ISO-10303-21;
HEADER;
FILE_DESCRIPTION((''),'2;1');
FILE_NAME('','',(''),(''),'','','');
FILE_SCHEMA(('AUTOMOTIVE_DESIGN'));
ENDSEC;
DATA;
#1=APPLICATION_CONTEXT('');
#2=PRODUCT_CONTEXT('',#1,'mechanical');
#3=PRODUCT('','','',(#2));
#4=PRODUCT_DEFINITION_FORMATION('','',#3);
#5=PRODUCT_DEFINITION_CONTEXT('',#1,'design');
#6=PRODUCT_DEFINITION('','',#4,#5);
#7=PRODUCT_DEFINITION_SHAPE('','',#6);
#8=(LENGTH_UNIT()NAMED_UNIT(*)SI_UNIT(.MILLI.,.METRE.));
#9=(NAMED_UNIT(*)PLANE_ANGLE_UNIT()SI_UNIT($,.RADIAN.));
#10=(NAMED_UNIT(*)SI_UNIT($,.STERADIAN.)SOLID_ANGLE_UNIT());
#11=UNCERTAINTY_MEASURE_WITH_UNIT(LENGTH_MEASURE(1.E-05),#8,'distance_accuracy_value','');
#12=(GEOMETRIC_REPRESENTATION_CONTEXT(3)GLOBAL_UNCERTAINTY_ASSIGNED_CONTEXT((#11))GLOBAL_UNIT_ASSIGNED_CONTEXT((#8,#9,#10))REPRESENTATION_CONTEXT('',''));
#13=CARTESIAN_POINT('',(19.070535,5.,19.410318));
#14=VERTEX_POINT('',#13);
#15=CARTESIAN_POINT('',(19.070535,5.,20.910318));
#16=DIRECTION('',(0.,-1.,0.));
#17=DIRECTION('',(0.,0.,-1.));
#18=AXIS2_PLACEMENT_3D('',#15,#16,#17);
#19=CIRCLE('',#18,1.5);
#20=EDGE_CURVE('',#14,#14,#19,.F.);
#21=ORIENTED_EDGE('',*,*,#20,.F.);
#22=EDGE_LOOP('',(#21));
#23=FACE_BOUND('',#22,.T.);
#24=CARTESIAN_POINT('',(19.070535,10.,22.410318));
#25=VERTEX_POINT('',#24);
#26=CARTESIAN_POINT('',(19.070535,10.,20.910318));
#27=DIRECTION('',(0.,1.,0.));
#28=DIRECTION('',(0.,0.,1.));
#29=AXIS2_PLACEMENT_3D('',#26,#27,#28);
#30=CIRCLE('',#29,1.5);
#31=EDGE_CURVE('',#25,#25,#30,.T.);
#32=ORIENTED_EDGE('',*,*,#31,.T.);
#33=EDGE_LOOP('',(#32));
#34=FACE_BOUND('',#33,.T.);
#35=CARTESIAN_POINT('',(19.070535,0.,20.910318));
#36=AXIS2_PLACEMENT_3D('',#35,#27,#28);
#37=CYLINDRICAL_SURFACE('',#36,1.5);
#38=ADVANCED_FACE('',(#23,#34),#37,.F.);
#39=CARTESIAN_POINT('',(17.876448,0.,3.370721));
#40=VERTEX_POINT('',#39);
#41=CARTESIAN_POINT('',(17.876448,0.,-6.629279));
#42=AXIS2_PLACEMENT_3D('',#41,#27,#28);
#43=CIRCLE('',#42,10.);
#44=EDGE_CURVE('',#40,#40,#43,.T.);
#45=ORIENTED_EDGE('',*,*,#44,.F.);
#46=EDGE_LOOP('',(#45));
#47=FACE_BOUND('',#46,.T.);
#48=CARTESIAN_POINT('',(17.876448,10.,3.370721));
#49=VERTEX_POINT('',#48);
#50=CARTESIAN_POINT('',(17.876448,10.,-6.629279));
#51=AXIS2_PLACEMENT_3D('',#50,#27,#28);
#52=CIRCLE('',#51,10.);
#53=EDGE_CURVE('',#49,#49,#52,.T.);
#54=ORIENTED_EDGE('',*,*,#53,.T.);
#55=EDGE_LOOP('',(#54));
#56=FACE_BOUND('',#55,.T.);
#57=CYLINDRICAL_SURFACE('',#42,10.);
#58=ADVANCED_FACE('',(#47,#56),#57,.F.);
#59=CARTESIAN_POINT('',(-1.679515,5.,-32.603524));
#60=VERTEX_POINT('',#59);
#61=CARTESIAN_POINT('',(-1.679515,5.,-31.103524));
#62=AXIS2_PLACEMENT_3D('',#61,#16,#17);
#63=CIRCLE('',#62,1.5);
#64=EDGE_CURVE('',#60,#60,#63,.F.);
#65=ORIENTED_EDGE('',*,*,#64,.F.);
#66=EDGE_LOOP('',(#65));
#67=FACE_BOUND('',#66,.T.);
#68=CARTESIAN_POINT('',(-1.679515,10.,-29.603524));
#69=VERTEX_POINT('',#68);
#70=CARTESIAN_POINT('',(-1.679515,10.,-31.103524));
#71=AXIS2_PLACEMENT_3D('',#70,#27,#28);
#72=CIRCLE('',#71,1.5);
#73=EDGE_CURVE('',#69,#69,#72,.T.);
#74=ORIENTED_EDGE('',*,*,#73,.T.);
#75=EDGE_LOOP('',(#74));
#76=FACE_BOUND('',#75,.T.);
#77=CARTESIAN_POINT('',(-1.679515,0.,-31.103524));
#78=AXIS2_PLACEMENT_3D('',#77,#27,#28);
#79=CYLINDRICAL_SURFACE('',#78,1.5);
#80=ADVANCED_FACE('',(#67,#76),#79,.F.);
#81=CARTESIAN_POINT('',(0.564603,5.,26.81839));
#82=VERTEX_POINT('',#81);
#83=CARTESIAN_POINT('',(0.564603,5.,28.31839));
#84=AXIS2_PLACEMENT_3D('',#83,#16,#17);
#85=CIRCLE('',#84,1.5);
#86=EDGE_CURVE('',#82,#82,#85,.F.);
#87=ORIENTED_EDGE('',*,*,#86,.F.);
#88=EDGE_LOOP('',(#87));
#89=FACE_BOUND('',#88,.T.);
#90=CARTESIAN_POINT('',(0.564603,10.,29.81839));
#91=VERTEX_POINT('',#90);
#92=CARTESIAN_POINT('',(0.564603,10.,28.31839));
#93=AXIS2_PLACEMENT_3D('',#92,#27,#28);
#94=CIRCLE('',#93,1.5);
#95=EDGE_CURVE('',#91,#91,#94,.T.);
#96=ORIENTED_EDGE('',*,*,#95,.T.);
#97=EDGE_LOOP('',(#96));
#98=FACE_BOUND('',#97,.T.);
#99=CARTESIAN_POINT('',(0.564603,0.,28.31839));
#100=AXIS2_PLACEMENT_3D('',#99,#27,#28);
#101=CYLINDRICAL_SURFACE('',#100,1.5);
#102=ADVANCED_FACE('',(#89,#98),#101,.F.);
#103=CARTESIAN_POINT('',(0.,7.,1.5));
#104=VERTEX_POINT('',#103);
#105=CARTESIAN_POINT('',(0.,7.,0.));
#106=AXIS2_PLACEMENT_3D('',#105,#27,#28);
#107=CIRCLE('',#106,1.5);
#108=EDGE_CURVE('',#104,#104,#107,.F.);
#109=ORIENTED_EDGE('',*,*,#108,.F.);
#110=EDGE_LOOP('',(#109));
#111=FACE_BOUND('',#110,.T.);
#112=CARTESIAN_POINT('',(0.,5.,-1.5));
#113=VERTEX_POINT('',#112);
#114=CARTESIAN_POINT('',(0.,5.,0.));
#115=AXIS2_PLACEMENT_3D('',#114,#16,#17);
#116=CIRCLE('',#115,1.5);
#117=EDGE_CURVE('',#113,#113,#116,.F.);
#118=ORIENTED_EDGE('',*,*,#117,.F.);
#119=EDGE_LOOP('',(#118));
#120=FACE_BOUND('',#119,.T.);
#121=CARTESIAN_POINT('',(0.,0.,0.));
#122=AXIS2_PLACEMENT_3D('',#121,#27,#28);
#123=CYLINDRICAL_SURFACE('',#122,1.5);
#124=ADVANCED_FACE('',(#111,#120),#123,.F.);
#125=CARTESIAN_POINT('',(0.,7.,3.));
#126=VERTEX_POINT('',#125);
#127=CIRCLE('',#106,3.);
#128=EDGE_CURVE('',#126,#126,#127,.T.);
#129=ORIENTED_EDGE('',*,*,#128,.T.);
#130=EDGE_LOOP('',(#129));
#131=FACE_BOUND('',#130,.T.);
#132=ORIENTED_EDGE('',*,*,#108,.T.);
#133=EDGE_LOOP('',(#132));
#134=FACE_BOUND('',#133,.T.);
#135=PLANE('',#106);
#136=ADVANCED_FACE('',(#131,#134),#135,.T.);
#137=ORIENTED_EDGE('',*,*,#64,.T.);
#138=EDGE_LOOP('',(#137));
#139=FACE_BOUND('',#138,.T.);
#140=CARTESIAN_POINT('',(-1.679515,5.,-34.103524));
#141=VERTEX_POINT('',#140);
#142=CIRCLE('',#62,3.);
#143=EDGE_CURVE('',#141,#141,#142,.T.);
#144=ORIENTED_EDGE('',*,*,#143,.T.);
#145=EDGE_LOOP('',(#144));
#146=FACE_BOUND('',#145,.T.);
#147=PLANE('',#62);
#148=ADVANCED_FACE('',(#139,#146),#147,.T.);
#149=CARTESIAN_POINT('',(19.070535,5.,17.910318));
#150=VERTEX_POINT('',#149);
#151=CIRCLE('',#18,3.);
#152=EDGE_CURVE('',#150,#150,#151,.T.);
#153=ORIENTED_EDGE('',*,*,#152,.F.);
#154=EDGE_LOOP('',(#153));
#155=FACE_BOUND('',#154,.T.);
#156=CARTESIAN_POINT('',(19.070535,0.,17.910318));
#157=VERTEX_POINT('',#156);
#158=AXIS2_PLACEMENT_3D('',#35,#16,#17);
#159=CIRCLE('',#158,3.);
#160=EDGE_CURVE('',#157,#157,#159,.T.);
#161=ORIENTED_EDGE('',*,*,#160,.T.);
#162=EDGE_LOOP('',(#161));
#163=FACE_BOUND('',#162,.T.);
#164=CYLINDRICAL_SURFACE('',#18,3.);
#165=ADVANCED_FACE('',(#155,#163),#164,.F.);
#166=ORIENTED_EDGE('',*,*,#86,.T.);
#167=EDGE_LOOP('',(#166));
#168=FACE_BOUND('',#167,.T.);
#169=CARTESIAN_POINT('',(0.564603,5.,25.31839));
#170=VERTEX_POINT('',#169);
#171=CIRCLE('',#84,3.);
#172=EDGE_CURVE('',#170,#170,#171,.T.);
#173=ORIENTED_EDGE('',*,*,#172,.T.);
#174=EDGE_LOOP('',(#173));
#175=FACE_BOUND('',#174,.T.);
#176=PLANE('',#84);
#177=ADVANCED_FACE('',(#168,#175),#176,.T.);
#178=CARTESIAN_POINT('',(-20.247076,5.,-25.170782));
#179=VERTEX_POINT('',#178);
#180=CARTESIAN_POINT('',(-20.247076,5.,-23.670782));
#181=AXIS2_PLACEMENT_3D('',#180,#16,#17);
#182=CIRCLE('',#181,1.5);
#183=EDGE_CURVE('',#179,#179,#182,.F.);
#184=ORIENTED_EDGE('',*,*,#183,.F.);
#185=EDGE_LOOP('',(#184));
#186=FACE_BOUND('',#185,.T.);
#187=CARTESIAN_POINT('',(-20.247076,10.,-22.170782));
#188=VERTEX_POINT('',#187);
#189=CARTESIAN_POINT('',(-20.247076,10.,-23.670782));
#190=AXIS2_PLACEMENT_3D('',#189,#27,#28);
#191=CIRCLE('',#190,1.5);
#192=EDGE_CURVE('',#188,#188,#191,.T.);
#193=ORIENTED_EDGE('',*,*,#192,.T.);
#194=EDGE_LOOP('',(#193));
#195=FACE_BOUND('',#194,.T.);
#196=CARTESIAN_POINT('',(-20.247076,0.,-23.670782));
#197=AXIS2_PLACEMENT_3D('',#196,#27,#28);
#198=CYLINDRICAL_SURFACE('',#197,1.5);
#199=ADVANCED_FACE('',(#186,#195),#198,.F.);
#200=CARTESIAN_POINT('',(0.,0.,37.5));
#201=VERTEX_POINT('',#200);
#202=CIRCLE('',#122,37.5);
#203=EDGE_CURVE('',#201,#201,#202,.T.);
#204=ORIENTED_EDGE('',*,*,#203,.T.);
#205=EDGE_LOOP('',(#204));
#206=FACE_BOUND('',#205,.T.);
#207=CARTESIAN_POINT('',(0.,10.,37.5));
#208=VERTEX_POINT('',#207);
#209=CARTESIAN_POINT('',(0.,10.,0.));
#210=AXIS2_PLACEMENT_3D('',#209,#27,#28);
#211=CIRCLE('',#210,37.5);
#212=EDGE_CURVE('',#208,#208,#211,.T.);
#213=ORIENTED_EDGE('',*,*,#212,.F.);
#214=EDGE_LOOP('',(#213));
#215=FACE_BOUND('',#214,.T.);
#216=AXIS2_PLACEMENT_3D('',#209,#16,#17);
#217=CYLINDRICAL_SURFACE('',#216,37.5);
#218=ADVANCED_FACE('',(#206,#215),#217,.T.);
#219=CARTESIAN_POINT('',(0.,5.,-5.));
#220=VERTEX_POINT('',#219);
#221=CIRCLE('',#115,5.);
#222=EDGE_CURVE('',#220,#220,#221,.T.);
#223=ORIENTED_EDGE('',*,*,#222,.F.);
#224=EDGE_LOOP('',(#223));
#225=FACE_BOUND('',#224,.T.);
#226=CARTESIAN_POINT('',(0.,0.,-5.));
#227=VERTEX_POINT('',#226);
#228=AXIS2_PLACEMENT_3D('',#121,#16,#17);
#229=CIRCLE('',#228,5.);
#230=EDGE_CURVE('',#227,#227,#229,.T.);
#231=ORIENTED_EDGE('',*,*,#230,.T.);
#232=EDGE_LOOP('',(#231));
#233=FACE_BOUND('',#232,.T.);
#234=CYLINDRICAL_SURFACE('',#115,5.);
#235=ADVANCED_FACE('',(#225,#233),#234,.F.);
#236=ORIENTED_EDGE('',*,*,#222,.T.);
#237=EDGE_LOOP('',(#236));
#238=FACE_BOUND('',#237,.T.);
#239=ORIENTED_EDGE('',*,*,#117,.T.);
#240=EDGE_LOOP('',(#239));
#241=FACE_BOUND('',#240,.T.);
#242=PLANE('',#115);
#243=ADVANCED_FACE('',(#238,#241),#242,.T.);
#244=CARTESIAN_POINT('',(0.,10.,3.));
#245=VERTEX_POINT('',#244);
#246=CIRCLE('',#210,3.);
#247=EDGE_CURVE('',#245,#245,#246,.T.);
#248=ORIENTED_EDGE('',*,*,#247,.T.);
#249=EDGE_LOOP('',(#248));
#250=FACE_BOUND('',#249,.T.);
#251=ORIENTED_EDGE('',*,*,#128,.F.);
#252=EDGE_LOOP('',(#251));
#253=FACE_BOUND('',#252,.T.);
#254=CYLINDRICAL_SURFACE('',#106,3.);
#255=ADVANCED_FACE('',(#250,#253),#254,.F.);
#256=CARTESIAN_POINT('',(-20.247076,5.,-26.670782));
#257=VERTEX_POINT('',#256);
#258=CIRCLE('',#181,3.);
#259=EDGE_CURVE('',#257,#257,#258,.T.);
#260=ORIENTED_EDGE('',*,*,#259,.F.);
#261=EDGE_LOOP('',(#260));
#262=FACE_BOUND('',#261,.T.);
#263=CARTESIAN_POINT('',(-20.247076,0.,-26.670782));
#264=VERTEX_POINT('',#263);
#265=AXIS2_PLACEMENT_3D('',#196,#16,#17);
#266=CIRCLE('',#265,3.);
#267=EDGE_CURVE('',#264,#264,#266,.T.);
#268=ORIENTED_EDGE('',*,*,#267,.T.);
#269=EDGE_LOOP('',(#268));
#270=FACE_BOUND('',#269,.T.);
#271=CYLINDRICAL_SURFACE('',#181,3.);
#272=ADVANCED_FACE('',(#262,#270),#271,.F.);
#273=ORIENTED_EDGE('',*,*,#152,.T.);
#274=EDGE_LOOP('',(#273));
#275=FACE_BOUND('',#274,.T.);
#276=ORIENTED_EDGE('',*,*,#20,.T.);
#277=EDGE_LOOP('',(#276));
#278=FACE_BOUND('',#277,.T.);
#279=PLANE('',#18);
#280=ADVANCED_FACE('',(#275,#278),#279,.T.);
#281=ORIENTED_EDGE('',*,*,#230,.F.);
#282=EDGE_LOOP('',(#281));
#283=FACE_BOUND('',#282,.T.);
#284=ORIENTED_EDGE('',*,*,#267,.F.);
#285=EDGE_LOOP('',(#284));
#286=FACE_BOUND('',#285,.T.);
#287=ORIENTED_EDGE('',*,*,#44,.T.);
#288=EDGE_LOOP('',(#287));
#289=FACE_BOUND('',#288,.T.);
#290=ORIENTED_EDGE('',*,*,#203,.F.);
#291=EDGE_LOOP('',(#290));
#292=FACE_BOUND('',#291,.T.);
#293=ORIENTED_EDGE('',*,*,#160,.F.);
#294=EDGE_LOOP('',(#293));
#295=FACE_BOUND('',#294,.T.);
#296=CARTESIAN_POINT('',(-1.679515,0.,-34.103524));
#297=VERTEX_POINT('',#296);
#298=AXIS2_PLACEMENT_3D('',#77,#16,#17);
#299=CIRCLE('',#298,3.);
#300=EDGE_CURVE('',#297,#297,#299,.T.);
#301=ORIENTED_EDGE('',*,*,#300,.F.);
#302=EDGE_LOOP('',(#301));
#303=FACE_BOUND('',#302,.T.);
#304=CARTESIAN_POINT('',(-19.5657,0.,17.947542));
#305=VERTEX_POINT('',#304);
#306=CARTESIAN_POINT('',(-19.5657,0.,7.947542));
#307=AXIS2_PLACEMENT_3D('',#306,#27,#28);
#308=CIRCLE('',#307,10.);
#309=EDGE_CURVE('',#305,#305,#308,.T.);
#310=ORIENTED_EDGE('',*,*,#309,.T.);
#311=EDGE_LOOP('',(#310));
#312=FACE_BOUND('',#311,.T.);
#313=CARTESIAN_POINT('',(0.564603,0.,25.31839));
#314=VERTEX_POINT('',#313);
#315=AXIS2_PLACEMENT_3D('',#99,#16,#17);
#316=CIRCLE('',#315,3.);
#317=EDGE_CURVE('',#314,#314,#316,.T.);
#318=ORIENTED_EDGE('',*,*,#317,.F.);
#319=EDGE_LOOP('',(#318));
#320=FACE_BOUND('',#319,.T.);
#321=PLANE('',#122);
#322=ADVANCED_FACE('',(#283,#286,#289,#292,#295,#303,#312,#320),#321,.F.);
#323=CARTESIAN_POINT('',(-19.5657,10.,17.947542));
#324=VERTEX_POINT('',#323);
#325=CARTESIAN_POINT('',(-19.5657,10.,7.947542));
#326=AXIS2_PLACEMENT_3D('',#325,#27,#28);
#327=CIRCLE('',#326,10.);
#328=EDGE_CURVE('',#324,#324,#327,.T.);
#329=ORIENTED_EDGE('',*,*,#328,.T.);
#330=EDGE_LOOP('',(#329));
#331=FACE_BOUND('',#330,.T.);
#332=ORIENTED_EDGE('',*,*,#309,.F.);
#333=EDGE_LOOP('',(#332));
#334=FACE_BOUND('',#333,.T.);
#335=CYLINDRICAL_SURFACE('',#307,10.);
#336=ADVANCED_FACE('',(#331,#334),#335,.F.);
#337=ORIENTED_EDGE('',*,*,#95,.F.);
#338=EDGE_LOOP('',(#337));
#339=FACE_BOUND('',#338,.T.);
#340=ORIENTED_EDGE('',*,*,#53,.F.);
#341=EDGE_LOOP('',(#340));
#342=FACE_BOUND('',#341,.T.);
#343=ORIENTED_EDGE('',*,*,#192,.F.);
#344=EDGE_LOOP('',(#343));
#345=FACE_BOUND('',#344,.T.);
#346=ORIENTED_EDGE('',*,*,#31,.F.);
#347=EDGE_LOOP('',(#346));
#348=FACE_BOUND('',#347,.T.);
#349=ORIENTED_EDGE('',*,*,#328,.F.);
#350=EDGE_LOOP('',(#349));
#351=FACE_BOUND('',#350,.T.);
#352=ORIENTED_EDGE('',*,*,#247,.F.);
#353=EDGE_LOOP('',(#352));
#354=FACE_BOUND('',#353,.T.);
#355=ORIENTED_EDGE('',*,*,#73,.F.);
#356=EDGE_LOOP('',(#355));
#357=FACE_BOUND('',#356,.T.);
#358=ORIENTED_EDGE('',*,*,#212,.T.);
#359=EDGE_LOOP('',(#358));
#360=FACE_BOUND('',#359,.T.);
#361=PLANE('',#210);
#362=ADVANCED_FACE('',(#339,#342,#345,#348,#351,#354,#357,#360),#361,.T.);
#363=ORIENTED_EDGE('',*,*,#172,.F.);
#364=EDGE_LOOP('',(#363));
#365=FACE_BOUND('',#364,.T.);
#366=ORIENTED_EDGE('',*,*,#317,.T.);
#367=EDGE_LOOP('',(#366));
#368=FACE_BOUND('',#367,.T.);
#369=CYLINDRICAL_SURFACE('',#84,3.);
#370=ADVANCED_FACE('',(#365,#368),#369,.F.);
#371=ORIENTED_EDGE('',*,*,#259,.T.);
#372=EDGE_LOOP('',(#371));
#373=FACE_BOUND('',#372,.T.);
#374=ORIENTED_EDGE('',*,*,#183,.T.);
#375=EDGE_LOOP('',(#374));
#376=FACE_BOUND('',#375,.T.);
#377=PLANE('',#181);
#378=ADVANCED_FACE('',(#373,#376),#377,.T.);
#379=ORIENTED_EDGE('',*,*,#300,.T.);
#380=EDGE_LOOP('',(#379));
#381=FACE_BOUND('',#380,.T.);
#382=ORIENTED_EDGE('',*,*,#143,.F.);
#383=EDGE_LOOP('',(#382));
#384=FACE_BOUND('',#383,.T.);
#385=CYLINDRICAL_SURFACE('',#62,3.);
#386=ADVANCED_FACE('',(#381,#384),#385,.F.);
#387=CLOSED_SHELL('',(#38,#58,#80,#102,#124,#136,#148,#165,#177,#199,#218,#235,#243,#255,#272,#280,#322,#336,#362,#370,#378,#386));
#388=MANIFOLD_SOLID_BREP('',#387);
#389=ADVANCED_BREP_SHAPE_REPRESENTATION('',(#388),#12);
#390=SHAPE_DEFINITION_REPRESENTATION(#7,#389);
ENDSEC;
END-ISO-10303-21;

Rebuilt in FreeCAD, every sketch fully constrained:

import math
import FreeCAD as App
import Part
import Sketcher

V = App.Vector

doc = App.newDocument("Part")
body = doc.addObject("PartDesign::Body", "Body")

# Sketch on XZ plane
sketch1 = body.newObject("Sketcher::SketchObject", "Sketch")
sketch1.AttachmentSupport = (doc.getObject("XZ_Plane"), [""])
sketch1.MapMode = "FlatFace"
sketch1.addGeometry(Part.Circle(V(0, 0, 0), V(0, 0, 1), 38), False)
sketch1.addConstraint(Sketcher.Constraint("Coincident", 0, 3, -1, 1))
sketch1.addConstraint(Sketcher.Constraint("Diameter", 0, 75.0))
pad1 = body.newObject("PartDesign::Pad", "Pad")
pad1.Profile = sketch1
pad1.Length = 10
pad1.Reversed = True

# Sketch on XZ plane
sketch2 = body.newObject("Sketcher::SketchObject", "Sketch001")
sketch2.AttachmentSupport = (doc.getObject("XZ_Plane"), [""])
sketch2.MapMode = "FlatFace"
sketch2.AttachmentOffset = App.Placement(V(0, 0, -10), App.Rotation())
sketch2.addGeometry(Part.Circle(V(0, 0, 0), V(0, 0, 1), 1.5), False)
sketch2.addConstraint(Sketcher.Constraint("Coincident", 0, 3, -1, 1))
sketch2.addConstraint(Sketcher.Constraint("Diameter", 0, 3.0))
pocket1 = body.newObject("PartDesign::Pocket", "Pocket")
pocket1.Profile = sketch2
pocket1.Type = "ThroughAll"
pocket1.Reversed = True

# Sketch on XZ plane
sketch3 = body.newObject("Sketcher::SketchObject", "Sketch002")
sketch3.AttachmentSupport = (doc.getObject("XZ_Plane"), [""])
sketch3.MapMode = "FlatFace"
sketch3.addGeometry(Part.Circle(V(0, 0, 0), V(0, 0, 1), 5), False)
sketch3.addConstraint(Sketcher.Constraint("Coincident", 0, 3, -1, 1))
sketch3.addConstraint(Sketcher.Constraint("Diameter", 0, 10.0))
pocket2 = body.newObject("PartDesign::Pocket", "Pocket001")
pocket2.Profile = sketch3
pocket2.Length = 5

# Sketch on XZ plane
sketch4 = body.newObject("Sketcher::SketchObject", "Sketch003")
sketch4.AttachmentSupport = (doc.getObject("XZ_Plane"), [""])
sketch4.MapMode = "FlatFace"
sketch4.AttachmentOffset = App.Placement(V(0, 0, -10), App.Rotation())
sketch4.addGeometry(Part.ArcOfCircle(Part.Circle(V(-20.2, -23.7, 0), V(0, 0, 1), 1.5), math.radians(68), math.radians(338)), False)
sketch4.addGeometry(Part.ArcOfCircle(Part.Circle(V(-20.2, -23.7, 0), V(0, 0, 1), 1.5), math.radians(0), math.radians(68)), False)
sketch4.addGeometry(Part.ArcOfCircle(Part.Circle(V(-20.2, -23.7, 0), V(0, 0, 1), 1.5), math.radians(-22), math.radians(0)), False)
sketch4.addGeometry(Part.ArcOfCircle(Part.Circle(V(-1.7, -31.1, 0), V(0, 0, 1), 1.5), math.radians(68), math.radians(158)), False)
sketch4.addGeometry(Part.ArcOfCircle(Part.Circle(V(-1.7, -31.1, 0), V(0, 0, 1), 1.5), math.radians(0), math.radians(68)), False)
sketch4.addGeometry(Part.ArcOfCircle(Part.Circle(V(-1.7, -31.1, 0), V(0, 0, 1), 1.5), math.radians(158), math.radians(360)), False)
sketch4.addGeometry(Part.Circle(V(19.1, 20.9, 0), V(0, 0, 1), 1.5), False)
sketch4.addGeometry(Part.Circle(V(0.6, 28.3, 0), V(0, 0, 1), 1.5), False)
sketch4.addConstraint(Sketcher.Constraint("Tangent", 0, 1, 1, 2))
sketch4.addConstraint(Sketcher.Constraint("Tangent", 1, 1, 2, 2))
sketch4.addConstraint(Sketcher.Constraint("Tangent", 2, 1, 0, 2))
sketch4.addConstraint(Sketcher.Constraint("Tangent", 3, 1, 4, 2))
sketch4.addConstraint(Sketcher.Constraint("Tangent", 4, 1, 5, 2))
sketch4.addConstraint(Sketcher.Constraint("Tangent", 5, 1, 3, 2))
sketch4.addConstraint(Sketcher.Constraint("Equal", 2, 3))
sketch4.addConstraint(Sketcher.Constraint("Equal", 5, 6))
sketch4.addConstraint(Sketcher.Constraint("Equal", 6, 7))
sketch4.addConstraint(Sketcher.Constraint("Horizontal", 2, 3, 1, 1))
sketch4.addConstraint(Sketcher.Constraint("Horizontal", 5, 3, 4, 1))
sketch4.addConstraint(Sketcher.Constraint("Diameter", 6, 3.0))
sketch4.addConstraint(Sketcher.Constraint("DistanceY", 2, 3, 6, 3, 44.5811))
sketch4.addConstraint(Sketcher.Constraint("DistanceY", 0, 3, -1, 1, 23.670782))
sketch4.addConstraint(Sketcher.Constraint("DistanceY", -1, 1, 7, 3, 28.31839))
sketch4.addConstraint(Sketcher.Constraint("DistanceX", 0, 1, -1, 1, 19.689621))
sketch4.addConstraint(Sketcher.Constraint("DistanceX", 2, 1, -1, 1, 18.854509))
sketch4.addConstraint(Sketcher.Constraint("DistanceX", 3, 1, -1, 1, 1.122059))
sketch4.addConstraint(Sketcher.Constraint("DistanceX", 5, 1, -1, 1, 3.072082))
sketch4.addConstraint(Sketcher.Constraint("DistanceY", 5, 1, -1, 1, 30.546069))
sketch4.addConstraint(Sketcher.Constraint("DistanceX", 2, 3, 3, 3, 18.567561))
sketch4.addConstraint(Sketcher.Constraint("DistanceX", 3, 3, 6, 3, 20.75005))
sketch4.addConstraint(Sketcher.Constraint("DistanceX", 7, 3, 6, 3, 18.505931))
sketch4.addConstraint(Sketcher.Constraint("DistanceY", 3, 3, 0, 1, 8.82531))
pocket3 = body.newObject("PartDesign::Pocket", "Pocket002")
pocket3.Profile = sketch4
pocket3.Type = "ThroughAll"
pocket3.Reversed = True

# Sketch on XZ plane
sketch5 = body.newObject("Sketcher::SketchObject", "Sketch004")
sketch5.AttachmentSupport = (doc.getObject("XZ_Plane"), [""])
sketch5.MapMode = "FlatFace"
sketch5.addGeometry(Part.Circle(V(19.1, 20.9, 0), V(0, 0, 1), 3), False)
sketch5.addGeometry(Part.Circle(V(0.6, 28.3, 0), V(0, 0, 1), 3), False)
sketch5.addGeometry(Part.Circle(V(-1.7, -31.1, 0), V(0, 0, 1), 3), False)
sketch5.addGeometry(Part.Circle(V(-20.2, -23.7, 0), V(0, 0, 1), 3), False)
sketch5.addConstraint(Sketcher.Constraint("Equal", 0, 1))
sketch5.addConstraint(Sketcher.Constraint("Equal", 1, 2))
sketch5.addConstraint(Sketcher.Constraint("Equal", 2, 3))
sketch5.addConstraint(Sketcher.Constraint("Diameter", 0, 6.0))
sketch5.addConstraint(Sketcher.Constraint("DistanceY", 3, 3, 0, 3, 44.5811))
sketch5.addConstraint(Sketcher.Constraint("DistanceY", -1, 1, 0, 3, 20.910318))
sketch5.addConstraint(Sketcher.Constraint("DistanceY", -1, 1, 1, 3, 28.31839))
sketch5.addConstraint(Sketcher.Constraint("DistanceX", 1, 3, 0, 3, 18.505931))
sketch5.addConstraint(Sketcher.Constraint("DistanceX", 2, 3, 0, 3, 20.75005))
sketch5.addConstraint(Sketcher.Constraint("DistanceX", 3, 3, 2, 3, 18.567561))
sketch5.addConstraint(Sketcher.Constraint("DistanceX", -1, 1, 0, 3, 19.070535))
sketch5.addConstraint(Sketcher.Constraint("DistanceY", 2, 3, -1, 1, 31.103524))
pocket4 = body.newObject("PartDesign::Pocket", "Pocket003")
pocket4.Profile = sketch5
pocket4.Length = 5

# Sketch on XZ plane
sketch6 = body.newObject("Sketcher::SketchObject", "Sketch005")
sketch6.AttachmentSupport = (doc.getObject("XZ_Plane"), [""])
sketch6.MapMode = "FlatFace"
sketch6.AttachmentOffset = App.Placement(V(0, 0, -10), App.Rotation())
sketch6.addGeometry(Part.Circle(V(0, 0, 0), V(0, 0, 1), 3), False)
sketch6.addConstraint(Sketcher.Constraint("Coincident", 0, 3, -1, 1))
sketch6.addConstraint(Sketcher.Constraint("Diameter", 0, 6.0))
pocket5 = body.newObject("PartDesign::Pocket", "Pocket004")
pocket5.Profile = sketch6
pocket5.Length = 3
pocket5.Reversed = True

# Sketch on XZ plane
sketch7 = body.newObject("Sketcher::SketchObject", "Sketch006")
sketch7.AttachmentSupport = (doc.getObject("XZ_Plane"), [""])
sketch7.MapMode = "FlatFace"
sketch7.AttachmentOffset = App.Placement(V(0, 0, -10), App.Rotation())
sketch7.addGeometry(Part.Circle(V(18, -7, 0), V(0, 0, 1), 10), False)
sketch7.addGeometry(Part.Circle(V(-20, 8, 0), V(0, 0, 1), 10), False)
sketch7.addConstraint(Sketcher.Constraint("Equal", 0, 1))
sketch7.addConstraint(Sketcher.Constraint("Diameter", 0, 20.0))
sketch7.addConstraint(Sketcher.Constraint("DistanceX", 1, 3, -1, 1, 19.5657))
sketch7.addConstraint(Sketcher.Constraint("DistanceX", -1, 1, 0, 3, 17.876448))
sketch7.addConstraint(Sketcher.Constraint("DistanceY", 0, 3, -1, 1, 6.629279))
sketch7.addConstraint(Sketcher.Constraint("DistanceY", -1, 1, 1, 3, 7.947542))
pocket6 = body.newObject("PartDesign::Pocket", "Pocket005")
pocket6.Profile = sketch7
pocket6.Type = "ThroughAll"
pocket6.Reversed = True

doc.recompute()
